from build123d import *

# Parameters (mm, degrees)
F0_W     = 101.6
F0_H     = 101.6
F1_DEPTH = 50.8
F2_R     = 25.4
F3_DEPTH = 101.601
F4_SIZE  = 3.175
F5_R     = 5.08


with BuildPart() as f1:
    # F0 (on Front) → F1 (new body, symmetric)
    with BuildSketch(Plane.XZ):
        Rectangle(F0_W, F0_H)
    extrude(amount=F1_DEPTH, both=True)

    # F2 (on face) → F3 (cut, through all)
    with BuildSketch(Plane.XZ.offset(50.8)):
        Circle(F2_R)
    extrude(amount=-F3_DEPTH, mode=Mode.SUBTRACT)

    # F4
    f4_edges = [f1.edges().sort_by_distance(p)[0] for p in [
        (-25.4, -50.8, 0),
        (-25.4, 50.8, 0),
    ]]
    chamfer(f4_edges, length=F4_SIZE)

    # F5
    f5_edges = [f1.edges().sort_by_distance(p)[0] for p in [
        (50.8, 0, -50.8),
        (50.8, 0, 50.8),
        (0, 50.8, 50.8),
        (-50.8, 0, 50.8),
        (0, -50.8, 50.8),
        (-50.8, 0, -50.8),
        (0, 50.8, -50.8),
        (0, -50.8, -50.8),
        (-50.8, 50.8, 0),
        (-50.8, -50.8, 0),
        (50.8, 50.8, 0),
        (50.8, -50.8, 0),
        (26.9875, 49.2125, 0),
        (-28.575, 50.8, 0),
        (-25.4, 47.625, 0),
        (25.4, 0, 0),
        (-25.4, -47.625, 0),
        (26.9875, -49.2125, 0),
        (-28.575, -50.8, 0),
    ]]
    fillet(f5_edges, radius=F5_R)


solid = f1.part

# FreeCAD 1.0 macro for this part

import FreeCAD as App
import Part
import Sketcher
from FreeCAD import Vector
Q = App.Units.Quantity


def edges_at(feature, points):
    """Names of the edges that pass closest to the given points."""
    edges = feature.Shape.Edges
    near = lambda p: min(range(len(edges)), key=lambda i: edges[i].distToShape(Part.Vertex(*p))[0])
    return sorted({f"Edge{near(p) + 1}" for p in points})

doc = App.newDocument("Part")
params = doc.addObject("Spreadsheet::Sheet", "Params")
for row, (alias, value) in enumerate([
    ("sketch1_width", "4 in"),
    ("pad1_length", "4 in"),
    ("sketch2_diameter", "2 in"),
    ("chamfer_size", "0.125 in"),
    ("fillet_radius", "0.2 in"),
], start=1):
    params.set(f"A{row}", alias)
    params.set(f"B{row}", "=" + value)
    params.setAlias(f"B{row}", alias)

body = doc.addObject("PartDesign::Body", "Body")

sketch1 = body.newObject("Sketcher::SketchObject", "Sketch")
sketch1.AttachmentSupport = (doc.getObject("XZ_Plane"), [""])
sketch1.MapMode = "FlatFace"
sketch1.addGeometry(Part.LineSegment(Vector(-51, 51, 0), Vector(-51, -51, 0)), False)
sketch1.addGeometry(Part.LineSegment(Vector(-51, -51, 0), Vector(51, -51, 0)), False)
sketch1.addGeometry(Part.LineSegment(Vector(51, -51, 0), Vector(51, 51, 0)), False)
sketch1.addGeometry(Part.LineSegment(Vector(51, 51, 0), Vector(-51, 51, 0)), False)
sketch1.addConstraint(Sketcher.Constraint("Coincident", 0, 2, 1, 1))
sketch1.addConstraint(Sketcher.Constraint("Coincident", 1, 2, 2, 1))
sketch1.addConstraint(Sketcher.Constraint("Coincident", 2, 2, 3, 1))
sketch1.addConstraint(Sketcher.Constraint("Coincident", 3, 2, 0, 1))
sketch1.addConstraint(Sketcher.Constraint("Vertical", 0))
sketch1.addConstraint(Sketcher.Constraint("Horizontal", 1))
sketch1.addConstraint(Sketcher.Constraint("Vertical", 2))
sketch1.addConstraint(Sketcher.Constraint("Horizontal", 3))
sketch1.addConstraint(Sketcher.Constraint("Symmetric", 0, 2, 2, 2, -1, 1))
sketch1.addConstraint(Sketcher.Constraint("Equal", 3, 0))
sketch1.addConstraint(Sketcher.Constraint("DistanceX", 1, 1, 1, 2, Q("4 in")))
sketch1.setExpression("Constraints[10]", "Params.sketch1_width")
pad1 = body.newObject("PartDesign::Pad", "Pad")
pad1.Profile = sketch1
pad1.setExpression("Length", "Params.pad1_length")
pad1.Midplane = True

sketch2 = body.newObject("Sketcher::SketchObject", "Sketch001")
sketch2.AttachmentSupport = (doc.getObject("XZ_Plane"), [""])
sketch2.MapMode = "FlatFace"
sketch2.AttachmentOffset = App.Placement(Vector(0, 0, 2 * 25.4), App.Rotation())
sketch2.addGeometry(Part.Circle(Vector(0, 0, 0), Vector(0, 0, 1), 25), False)
sketch2.addConstraint(Sketcher.Constraint("Coincident", 0, 3, -1, 1))
sketch2.addConstraint(Sketcher.Constraint("Diameter", 0, Q("2 in")))
sketch2.setExpression("Constraints[1]", "Params.sketch2_diameter")
pocket1 = body.newObject("PartDesign::Pocket", "Pocket")
pocket1.Profile = sketch2
pocket1.Type = "ThroughAll"
doc.recompute()

chamfer = body.newObject("PartDesign::Chamfer", "Chamfer")
chamfer.Base = (pocket1, edges_at(pocket1, [(-25.4, -50.8, 0), (-25.4, 50.8, 0)]))
chamfer.setExpression("Size", "Params.chamfer_size")
doc.recompute()

fillet = body.newObject("PartDesign::Fillet", "Fillet")
fillet.Base = (chamfer, ["Edge1"])
fillet.UseAllEdges = True
fillet.setExpression("Radius", "Params.fillet_radius")

doc.recompute()
